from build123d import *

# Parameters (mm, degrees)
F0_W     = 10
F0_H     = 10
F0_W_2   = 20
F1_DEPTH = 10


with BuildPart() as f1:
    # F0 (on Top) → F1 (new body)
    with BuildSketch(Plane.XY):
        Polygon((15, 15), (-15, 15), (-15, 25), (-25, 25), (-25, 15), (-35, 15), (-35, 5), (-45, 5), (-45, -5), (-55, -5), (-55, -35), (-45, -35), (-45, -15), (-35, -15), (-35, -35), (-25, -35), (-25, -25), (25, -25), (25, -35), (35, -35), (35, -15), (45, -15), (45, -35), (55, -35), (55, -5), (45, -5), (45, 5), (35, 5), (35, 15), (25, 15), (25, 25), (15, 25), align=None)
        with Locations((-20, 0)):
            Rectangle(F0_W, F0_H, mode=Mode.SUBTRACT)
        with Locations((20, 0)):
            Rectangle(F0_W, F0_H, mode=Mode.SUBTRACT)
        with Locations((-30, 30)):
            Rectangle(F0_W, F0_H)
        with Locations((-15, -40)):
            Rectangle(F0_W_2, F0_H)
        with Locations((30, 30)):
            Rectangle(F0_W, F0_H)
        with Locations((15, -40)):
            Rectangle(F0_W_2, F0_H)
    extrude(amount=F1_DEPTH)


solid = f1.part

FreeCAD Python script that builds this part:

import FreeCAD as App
import Part
import Sketcher
from FreeCAD import Vector
Q = App.Units.Quantity

doc = App.newDocument("Part")
body = doc.addObject("PartDesign::Body", "Body")
body.AllowCompound = True

# Sketch on XY plane
sketch1 = body.newObject("Sketcher::SketchObject", "Sketch")
sketch1.AttachmentSupport = (doc.getObject("XY_Plane"), [""])
sketch1.MapMode = "FlatFace"
sketch1.addGeometry(Part.LineSegment(Vector(15, 15, 0), Vector(-15, 15, 0)), False)
sketch1.addGeometry(Part.LineSegment(Vector(-15, 15, 0), Vector(-15, 25, 0)), False)
sketch1.addGeometry(Part.LineSegment(Vector(-15, 25, 0), Vector(-25, 25, 0)), False)
sketch1.addGeometry(Part.LineSegment(Vector(-25, 25, 0), Vector(-25, 15, 0)), False)
sketch1.addGeometry(Part.LineSegment(Vector(-25, 15, 0), Vector(-35, 15, 0)), False)
sketch1.addGeometry(Part.LineSegment(Vector(-35, 15, 0), Vector(-35, 5, 0)), False)
sketch1.addGeometry(Part.LineSegment(Vector(-35, 5, 0), Vector(-45, 5, 0)), False)
sketch1.addGeometry(Part.LineSegment(Vector(-45, 5, 0), Vector(-45, -5, 0)), False)
sketch1.addGeometry(Part.LineSegment(Vector(-45, -5, 0), Vector(-55, -5, 0)), False)
sketch1.addGeometry(Part.LineSegment(Vector(-55, -5, 0), Vector(-55, -35, 0)), False)
sketch1.addGeometry(Part.LineSegment(Vector(-55, -35, 0), Vector(-45, -35, 0)), False)
sketch1.addGeometry(Part.LineSegment(Vector(-45, -35, 0), Vector(-45, -15, 0)), False)
sketch1.addGeometry(Part.LineSegment(Vector(-45, -15, 0), Vector(-35, -15, 0)), False)
sketch1.addGeometry(Part.LineSegment(Vector(-35, -15, 0), Vector(-35, -35, 0)), False)
sketch1.addGeometry(Part.LineSegment(Vector(-35, -35, 0), Vector(-25, -35, 0)), False)
sketch1.addGeometry(Part.LineSegment(Vector(-25, -35, 0), Vector(-25, -25, 0)), False)
sketch1.addGeometry(Part.LineSegment(Vector(-25, -25, 0), Vector(25, -25, 0)), False)
sketch1.addGeometry(Part.LineSegment(Vector(25, -25, 0), Vector(25, -35, 0)), False)
sketch1.addGeometry(Part.LineSegment(Vector(25, -35, 0), Vector(35, -35, 0)), False)
sketch1.addGeometry(Part.LineSegment(Vector(35, -35, 0), Vector(35, -15, 0)), False)
sketch1.addGeometry(Part.LineSegment(Vector(35, -15, 0), Vector(45, -15, 0)), False)
sketch1.addGeometry(Part.LineSegment(Vector(45, -15, 0), Vector(45, -35, 0)), False)
sketch1.addGeometry(Part.LineSegment(Vector(45, -35, 0), Vector(55, -35, 0)), False)
sketch1.addGeometry(Part.LineSegment(Vector(55, -35, 0), Vector(55, -5, 0)), False)
sketch1.addGeometry(Part.LineSegment(Vector(55, -5, 0), Vector(45, -5, 0)), False)
sketch1.addGeometry(Part.LineSegment(Vector(45, -5, 0), Vector(45, 5, 0)), False)
sketch1.addGeometry(Part.LineSegment(Vector(45, 5, 0), Vector(35, 5, 0)), False)
sketch1.addGeometry(Part.LineSegment(Vector(35, 5, 0), Vector(35, 15, 0)), False)
sketch1.addGeometry(Part.LineSegment(Vector(35, 15, 0), Vector(25, 15, 0)), False)
sketch1.addGeometry(Part.LineSegment(Vector(25, 15, 0), Vector(25, 25, 0)), False)
sketch1.addGeometry(Part.LineSegment(Vector(25, 25, 0), Vector(15, 25, 0)), False)
sketch1.addGeometry(Part.LineSegment(Vector(15, 25, 0), Vector(15, 15, 0)), False)
sketch1.addGeometry(Part.LineSegment(Vector(-15, -5, 0), Vector(-25, -5, 0)), False)
sketch1.addGeometry(Part.LineSegment(Vector(-25, -5, 0), Vector(-25, 5, 0)), False)
sketch1.addGeometry(Part.LineSegment(Vector(-25, 5, 0), Vector(-15, 5, 0)), False)
sketch1.addGeometry(Part.LineSegment(Vector(-15, 5, 0), Vector(-15, -5, 0)), False)
sketch1.addGeometry(Part.LineSegment(Vector(25, -5, 0), Vector(15, -5, 0)), False)
sketch1.addGeometry(Part.LineSegment(Vector(15, -5, 0), Vector(15, 5, 0)), False)
sketch1.addGeometry(Part.LineSegment(Vector(15, 5, 0), Vector(25, 5, 0)), False)
sketch1.addGeometry(Part.LineSegment(Vector(25, 5, 0), Vector(25, -5, 0)), False)
sketch1.addGeometry(Part.LineSegment(Vector(-35, 35, 0), Vector(-35, 25, 0)), False)
sketch1.addGeometry(Part.LineSegment(Vector(-35, 25, 0), Vector(-25, 25, 0)), False)
sketch1.addGeometry(Part.LineSegment(Vector(-25, 25, 0), Vector(-25, 35, 0)), False)
sketch1.addGeometry(Part.LineSegment(Vector(-25, 35, 0), Vector(-35, 35, 0)), False)
sketch1.addGeometry(Part.LineSegment(Vector(-25, -35, 0), Vector(-25, -45, 0)), False)
sketch1.addGeometry(Part.LineSegment(Vector(-25, -45, 0), Vector(-5, -45, 0)), False)
sketch1.addGeometry(Part.LineSegment(Vector(-5, -45, 0), Vector(-5, -35, 0)), False)
sketch1.addGeometry(Part.LineSegment(Vector(-5, -35, 0), Vector(-25, -35, 0)), False)
sketch1.addGeometry(Part.LineSegment(Vector(25, 35, 0), Vector(25, 25, 0)), False)
sketch1.addGeometry(Part.LineSegment(Vector(25, 25, 0), Vector(35, 25, 0)), False)
sketch1.addGeometry(Part.LineSegment(Vector(35, 25, 0), Vector(35, 35, 0)), False)
sketch1.addGeometry(Part.LineSegment(Vector(35, 35, 0), Vector(25, 35, 0)), False)
sketch1.addGeometry(Part.LineSegment(Vector(5, -35, 0), Vector(5, -45, 0)), False)
sketch1.addGeometry(Part.LineSegment(Vector(5, -45, 0), Vector(25, -45, 0)), False)
sketch1.addGeometry(Part.LineSegment(Vector(25, -45, 0), Vector(25, -35, 0)), False)
sketch1.addGeometry(Part.LineSegment(Vector(25, -35, 0), Vector(5, -35, 0)), False)
sketch1.addConstraint(Sketcher.Constraint("Coincident", 0, 2, 1, 1))
sketch1.addConstraint(Sketcher.Constraint("Coincident", 1, 2, 2, 1))
sketch1.addConstraint(Sketcher.Constraint("Coincident", 2, 2, 3, 1))
sketch1.addConstraint(Sketcher.Constraint("Coincident", 3, 2, 4, 1))
sketch1.addConstraint(Sketcher.Constraint("Coincident", 4, 2, 5, 1))
sketch1.addConstraint(Sketcher.Constraint("Coincident", 5, 2, 6, 1))
sketch1.addConstraint(Sketcher.Constraint("Coincident", 6, 2, 7, 1))
sketch1.addConstraint(Sketcher.Constraint("Coincident", 7, 2, 8, 1))
sketch1.addConstraint(Sketcher.Constraint("Coincident", 8, 2, 9, 1))
sketch1.addConstraint(Sketcher.Constraint("Coincident", 9, 2, 10, 1))
sketch1.addConstraint(Sketcher.Constraint("Coincident", 10, 2, 11, 1))
sketch1.addConstraint(Sketcher.Constraint("Coincident", 11, 2, 12, 1))
sketch1.addConstraint(Sketcher.Constraint("Coincident", 12, 2, 13, 1))
sketch1.addConstraint(Sketcher.Constraint("Coincident", 13, 2, 14, 1))
sketch1.addConstraint(Sketcher.Constraint("Coincident", 14, 2, 15, 1))
sketch1.addConstraint(Sketcher.Constraint("Coincident", 15, 2, 16, 1))
sketch1.addConstraint(Sketcher.Constraint("Coincident", 16, 2, 17, 1))
sketch1.addConstraint(Sketcher.Constraint("Coincident", 17, 2, 18, 1))
sketch1.addConstraint(Sketcher.Constraint("Coincident", 18, 2, 19, 1))
sketch1.addConstraint(Sketcher.Constraint("Coincident", 19, 2, 20, 1))
sketch1.addConstraint(Sketcher.Constraint("Coincident", 20, 2, 21, 1))
sketch1.addConstraint(Sketcher.Constraint("Coincident", 21, 2, 22, 1))
sketch1.addConstraint(Sketcher.Constraint("Coincident", 22, 2, 23, 1))
sketch1.addConstraint(Sketcher.Constraint("Coincident", 23, 2, 24, 1))
sketch1.addConstraint(Sketcher.Constraint("Coincident", 24, 2, 25, 1))
sketch1.addConstraint(Sketcher.Constraint("Coincident", 25, 2, 26, 1))
sketch1.addConstraint(Sketcher.Constraint("Coincident", 26, 2, 27, 1))
sketch1.addConstraint(Sketcher.Constraint("Coincident", 27, 2, 28, 1))
sketch1.addConstraint(Sketcher.Constraint("Coincident", 28, 2, 29, 1))
sketch1.addConstraint(Sketcher.Constraint("Coincident", 29, 2, 30, 1))
sketch1.addConstraint(Sketcher.Constraint("Coincident", 30, 2, 31, 1))
sketch1.addConstraint(Sketcher.Constraint("Coincident", 31, 2, 0, 1))
sketch1.addConstraint(Sketcher.Constraint("Coincident", 32, 2, 33, 1))
sketch1.addConstraint(Sketcher.Constraint("Coincident", 33, 2, 34, 1))
sketch1.addConstraint(Sketcher.Constraint("Coincident", 34, 2, 35, 1))
sketch1.addConstraint(Sketcher.Constraint("Coincident", 35, 2, 32, 1))
sketch1.addConstraint(Sketcher.Constraint("Coincident", 36, 2, 37, 1))
sketch1.addConstraint(Sketcher.Constraint("Coincident", 37, 2, 38, 1))
sketch1.addConstraint(Sketcher.Constraint("Coincident", 38, 2, 39, 1))
sketch1.addConstraint(Sketcher.Constraint("Coincident", 39, 2, 36, 1))
sketch1.addConstraint(Sketcher.Constraint("Coincident", 40, 2, 41, 1))
sketch1.addConstraint(Sketcher.Constraint("Coincident", 41, 2, 42, 1))
sketch1.addConstraint(Sketcher.Constraint("Coincident", 42, 2, 43, 1))
sketch1.addConstraint(Sketcher.Constraint("Coincident", 43, 2, 40, 1))
sketch1.addConstraint(Sketcher.Constraint("Coincident", 44, 2, 45, 1))
sketch1.addConstraint(Sketcher.Constraint("Coincident", 45, 2, 46, 1))
sketch1.addConstraint(Sketcher.Constraint("Coincident", 46, 2, 47, 1))
sketch1.addConstraint(Sketcher.Constraint("Coincident", 47, 2, 44, 1))
sketch1.addConstraint(Sketcher.Constraint("Coincident", 48, 2, 49, 1))
sketch1.addConstraint(Sketcher.Constraint("Coincident", 49, 2, 50, 1))
sketch1.addConstraint(Sketcher.Constraint("Coincident", 50, 2, 51, 1))
sketch1.addConstraint(Sketcher.Constraint("Coincident", 51, 2, 48, 1))
sketch1.addConstraint(Sketcher.Constraint("Coincident", 52, 2, 53, 1))
sketch1.addConstraint(Sketcher.Constraint("Coincident", 53, 2, 54, 1))
sketch1.addConstraint(Sketcher.Constraint("Coincident", 54, 2, 55, 1))
sketch1.addConstraint(Sketcher.Constraint("Coincident", 55, 2, 52, 1))
sketch1.addConstraint(Sketcher.Constraint("Horizontal", 0))
sketch1.addConstraint(Sketcher.Constraint("Vertical", 1))
sketch1.addConstraint(Sketcher.Constraint("Horizontal", 2))
sketch1.addConstraint(Sketcher.Constraint("Vertical", 3))
sketch1.addConstraint(Sketcher.Constraint("Horizontal", 4))
sketch1.addConstraint(Sketcher.Constraint("Vertical", 5))
sketch1.addConstraint(Sketcher.Constraint("Horizontal", 6))
sketch1.addConstraint(Sketcher.Constraint("Vertical", 7))
sketch1.addConstraint(Sketcher.Constraint("Horizontal", 8))
sketch1.addConstraint(Sketcher.Constraint("Vertical", 9))
sketch1.addConstraint(Sketcher.Constraint("Horizontal", 10))
sketch1.addConstraint(Sketcher.Constraint("Vertical", 11))
sketch1.addConstraint(Sketcher.Constraint("Horizontal", 12))
sketch1.addConstraint(Sketcher.Constraint("Vertical", 13))
sketch1.addConstraint(Sketcher.Constraint("Horizontal", 14))
sketch1.addConstraint(Sketcher.Constraint("Vertical", 15))
sketch1.addConstraint(Sketcher.Constraint("Horizontal", 16))
sketch1.addConstraint(Sketcher.Constraint("Vertical", 17))
sketch1.addConstraint(Sketcher.Constraint("Horizontal", 18))
sketch1.addConstraint(Sketcher.Constraint("Vertical", 19))
sketch1.addConstraint(Sketcher.Constraint("Horizontal", 20))
sketch1.addConstraint(Sketcher.Constraint("Vertical", 21))
sketch1.addConstraint(Sketcher.Constraint("Horizontal", 22))
sketch1.addConstraint(Sketcher.Constraint("Vertical", 23))
sketch1.addConstraint(Sketcher.Constraint("Horizontal", 24))
sketch1.addConstraint(Sketcher.Constraint("Vertical", 25))
sketch1.addConstraint(Sketcher.Constraint("Horizontal", 26))
sketch1.addConstraint(Sketcher.Constraint("Vertical", 27))
sketch1.addConstraint(Sketcher.Constraint("Horizontal", 28))
sketch1.addConstraint(Sketcher.Constraint("Vertical", 29))
sketch1.addConstraint(Sketcher.Constraint("Horizontal", 30))
sketch1.addConstraint(Sketcher.Constraint("Vertical", 31))
sketch1.addConstraint(Sketcher.Constraint("Horizontal", 32))
sketch1.addConstraint(Sketcher.Constraint("Vertical", 33))
sketch1.addConstraint(Sketcher.Constraint("Horizontal", 34))
sketch1.addConstraint(Sketcher.Constraint("Vertical", 35))
sketch1.addConstraint(Sketcher.Constraint("Horizontal", 36))
sketch1.addConstraint(Sketcher.Constraint("Vertical", 37))
sketch1.addConstraint(Sketcher.Constraint("Horizontal", 38))
sketch1.addConstraint(Sketcher.Constraint("Vertical", 39))
sketch1.addConstraint(Sketcher.Constraint("Vertical", 40))
sketch1.addConstraint(Sketcher.Constraint("Horizontal", 41))
sketch1.addConstraint(Sketcher.Constraint("Vertical", 42))
sketch1.addConstraint(Sketcher.Constraint("Horizontal", 43))
sketch1.addConstraint(Sketcher.Constraint("Vertical", 44))
sketch1.addConstraint(Sketcher.Constraint("Horizontal", 45))
sketch1.addConstraint(Sketcher.Constraint("Vertical", 46))
sketch1.addConstraint(Sketcher.Constraint("Horizontal", 47))
sketch1.addConstraint(Sketcher.Constraint("Vertical", 48))
sketch1.addConstraint(Sketcher.Constraint("Horizontal", 49))
sketch1.addConstraint(Sketcher.Constraint("Vertical", 50))
sketch1.addConstraint(Sketcher.Constraint("Horizontal", 51))
sketch1.addConstraint(Sketcher.Constraint("Vertical", 52))
sketch1.addConstraint(Sketcher.Constraint("Horizontal", 53))
sketch1.addConstraint(Sketcher.Constraint("Vertical", 54))
sketch1.addConstraint(Sketcher.Constraint("Horizontal", 55))
sketch1.addConstraint(Sketcher.Constraint("Coincident", 41, 2, 2, 2))
sketch1.addConstraint(Sketcher.Constraint("Coincident", 47, 2, 14, 2))
sketch1.addConstraint(Sketcher.Constraint("Coincident", 48, 2, 29, 2))
sketch1.addConstraint(Sketcher.Constraint("Coincident", 54, 2, 17, 2))
sketch1.addConstraint(Sketcher.Constraint("Symmetric", 2, 2, 16, 2, -1, 1))
sketch1.addConstraint(Sketcher.Constraint("Symmetric", 4, 2, 19, 2, -1, 1))
sketch1.addConstraint(Sketcher.Constraint("Symmetric", 6, 2, 24, 2, -1, 1))
sketch1.addConstraint(Sketcher.Constraint("Symmetric", 12, 2, 27, 2, -1, 1))
sketch1.addConstraint(Sketcher.Constraint("Symmetric", 15, 2, 29, 2, -1, 1))
sketch1.addConstraint(Sketcher.Constraint("Symmetric", 34, 2, 36, 2, -1, 1))
sketch1.addConstraint(Sketcher.Constraint("Symmetric", 32, 2, 38, 2, -1, 1))
sketch1.addConstraint(Sketcher.Constraint("Symmetric", 18, 2, 43, 2, -1, 1))
sketch1.addConstraint(Sketcher.Constraint("Symmetric", 13, 2, 50, 2, -1, 1))
sketch1.addConstraint(Sketcher.Constraint("Symmetric", 14, 2, 17, 2, -2))
sketch1.addConstraint(Sketcher.Constraint("Symmetric", 12, 2, 19, 2, -2))
sketch1.addConstraint(Sketcher.Constraint("Symmetric", 10, 2, 21, 2, -2))
sketch1.addConstraint(Sketcher.Constraint("Symmetric", 8, 2, 23, 2, -2))
sketch1.addConstraint(Sketcher.Constraint("Symmetric", 45, 2, 52, 2, -2))
sketch1.addConstraint(Sketcher.Constraint("Horizontal", 0, 2, 3, 2))
sketch1.addConstraint(Sketcher.Constraint("Horizontal", 10, 2, 13, 2))
sketch1.addConstraint(Sketcher.Constraint("Horizontal", 6, 2, 25, 2))
sketch1.addConstraint(Sketcher.Constraint("Horizontal", 24, 2, 32, 2))
sketch1.addConstraint(Sketcher.Constraint("Horizontal", 26, 2, 33, 2))
sketch1.addConstraint(Sketcher.Constraint("Vertical", 7, 2, 10, 2))
sketch1.addConstraint(Sketcher.Constraint("Vertical", 15, 2, 32, 2))
sketch1.addConstraint(Sketcher.Constraint("Vertical", 1, 2, 34, 2))
sketch1.addConstraint(Sketcher.Constraint("Vertical", 31, 2, 36, 2))
sketch1.addConstraint(Sketcher.Constraint("Equal", 2, 4))
sketch1.addConstraint(Sketcher.Constraint("Equal", 4, 6))
sketch1.addConstraint(Sketcher.Constraint("Equal", 6, 8))
sketch1.addConstraint(Sketcher.Constraint("Equal", 51, 1))
sketch1.addConstraint(Sketcher.Constraint("Equal", 3, 5))
sketch1.addConstraint(Sketcher.Constraint("Equal", 5, 7))
sketch1.addConstraint(Sketcher.Constraint("Equal", 0, 9))
sketch1.addConstraint(Sketcher.Constraint("Equal", 55, 11))
sketch1.addConstraint(Sketcher.Constraint("Equal", 7, 15))
sketch1.addConstraint(Sketcher.Constraint("Equal", 42, 44))
sketch1.addConstraint(Sketcher.Constraint("DistanceX", 0, 2, 0, 1, Q("30 mm")))
pad1 = body.newObject("PartDesign::Pad", "Pad")
pad1.Profile = sketch1
pad1.Length = 10

doc.recompute()
